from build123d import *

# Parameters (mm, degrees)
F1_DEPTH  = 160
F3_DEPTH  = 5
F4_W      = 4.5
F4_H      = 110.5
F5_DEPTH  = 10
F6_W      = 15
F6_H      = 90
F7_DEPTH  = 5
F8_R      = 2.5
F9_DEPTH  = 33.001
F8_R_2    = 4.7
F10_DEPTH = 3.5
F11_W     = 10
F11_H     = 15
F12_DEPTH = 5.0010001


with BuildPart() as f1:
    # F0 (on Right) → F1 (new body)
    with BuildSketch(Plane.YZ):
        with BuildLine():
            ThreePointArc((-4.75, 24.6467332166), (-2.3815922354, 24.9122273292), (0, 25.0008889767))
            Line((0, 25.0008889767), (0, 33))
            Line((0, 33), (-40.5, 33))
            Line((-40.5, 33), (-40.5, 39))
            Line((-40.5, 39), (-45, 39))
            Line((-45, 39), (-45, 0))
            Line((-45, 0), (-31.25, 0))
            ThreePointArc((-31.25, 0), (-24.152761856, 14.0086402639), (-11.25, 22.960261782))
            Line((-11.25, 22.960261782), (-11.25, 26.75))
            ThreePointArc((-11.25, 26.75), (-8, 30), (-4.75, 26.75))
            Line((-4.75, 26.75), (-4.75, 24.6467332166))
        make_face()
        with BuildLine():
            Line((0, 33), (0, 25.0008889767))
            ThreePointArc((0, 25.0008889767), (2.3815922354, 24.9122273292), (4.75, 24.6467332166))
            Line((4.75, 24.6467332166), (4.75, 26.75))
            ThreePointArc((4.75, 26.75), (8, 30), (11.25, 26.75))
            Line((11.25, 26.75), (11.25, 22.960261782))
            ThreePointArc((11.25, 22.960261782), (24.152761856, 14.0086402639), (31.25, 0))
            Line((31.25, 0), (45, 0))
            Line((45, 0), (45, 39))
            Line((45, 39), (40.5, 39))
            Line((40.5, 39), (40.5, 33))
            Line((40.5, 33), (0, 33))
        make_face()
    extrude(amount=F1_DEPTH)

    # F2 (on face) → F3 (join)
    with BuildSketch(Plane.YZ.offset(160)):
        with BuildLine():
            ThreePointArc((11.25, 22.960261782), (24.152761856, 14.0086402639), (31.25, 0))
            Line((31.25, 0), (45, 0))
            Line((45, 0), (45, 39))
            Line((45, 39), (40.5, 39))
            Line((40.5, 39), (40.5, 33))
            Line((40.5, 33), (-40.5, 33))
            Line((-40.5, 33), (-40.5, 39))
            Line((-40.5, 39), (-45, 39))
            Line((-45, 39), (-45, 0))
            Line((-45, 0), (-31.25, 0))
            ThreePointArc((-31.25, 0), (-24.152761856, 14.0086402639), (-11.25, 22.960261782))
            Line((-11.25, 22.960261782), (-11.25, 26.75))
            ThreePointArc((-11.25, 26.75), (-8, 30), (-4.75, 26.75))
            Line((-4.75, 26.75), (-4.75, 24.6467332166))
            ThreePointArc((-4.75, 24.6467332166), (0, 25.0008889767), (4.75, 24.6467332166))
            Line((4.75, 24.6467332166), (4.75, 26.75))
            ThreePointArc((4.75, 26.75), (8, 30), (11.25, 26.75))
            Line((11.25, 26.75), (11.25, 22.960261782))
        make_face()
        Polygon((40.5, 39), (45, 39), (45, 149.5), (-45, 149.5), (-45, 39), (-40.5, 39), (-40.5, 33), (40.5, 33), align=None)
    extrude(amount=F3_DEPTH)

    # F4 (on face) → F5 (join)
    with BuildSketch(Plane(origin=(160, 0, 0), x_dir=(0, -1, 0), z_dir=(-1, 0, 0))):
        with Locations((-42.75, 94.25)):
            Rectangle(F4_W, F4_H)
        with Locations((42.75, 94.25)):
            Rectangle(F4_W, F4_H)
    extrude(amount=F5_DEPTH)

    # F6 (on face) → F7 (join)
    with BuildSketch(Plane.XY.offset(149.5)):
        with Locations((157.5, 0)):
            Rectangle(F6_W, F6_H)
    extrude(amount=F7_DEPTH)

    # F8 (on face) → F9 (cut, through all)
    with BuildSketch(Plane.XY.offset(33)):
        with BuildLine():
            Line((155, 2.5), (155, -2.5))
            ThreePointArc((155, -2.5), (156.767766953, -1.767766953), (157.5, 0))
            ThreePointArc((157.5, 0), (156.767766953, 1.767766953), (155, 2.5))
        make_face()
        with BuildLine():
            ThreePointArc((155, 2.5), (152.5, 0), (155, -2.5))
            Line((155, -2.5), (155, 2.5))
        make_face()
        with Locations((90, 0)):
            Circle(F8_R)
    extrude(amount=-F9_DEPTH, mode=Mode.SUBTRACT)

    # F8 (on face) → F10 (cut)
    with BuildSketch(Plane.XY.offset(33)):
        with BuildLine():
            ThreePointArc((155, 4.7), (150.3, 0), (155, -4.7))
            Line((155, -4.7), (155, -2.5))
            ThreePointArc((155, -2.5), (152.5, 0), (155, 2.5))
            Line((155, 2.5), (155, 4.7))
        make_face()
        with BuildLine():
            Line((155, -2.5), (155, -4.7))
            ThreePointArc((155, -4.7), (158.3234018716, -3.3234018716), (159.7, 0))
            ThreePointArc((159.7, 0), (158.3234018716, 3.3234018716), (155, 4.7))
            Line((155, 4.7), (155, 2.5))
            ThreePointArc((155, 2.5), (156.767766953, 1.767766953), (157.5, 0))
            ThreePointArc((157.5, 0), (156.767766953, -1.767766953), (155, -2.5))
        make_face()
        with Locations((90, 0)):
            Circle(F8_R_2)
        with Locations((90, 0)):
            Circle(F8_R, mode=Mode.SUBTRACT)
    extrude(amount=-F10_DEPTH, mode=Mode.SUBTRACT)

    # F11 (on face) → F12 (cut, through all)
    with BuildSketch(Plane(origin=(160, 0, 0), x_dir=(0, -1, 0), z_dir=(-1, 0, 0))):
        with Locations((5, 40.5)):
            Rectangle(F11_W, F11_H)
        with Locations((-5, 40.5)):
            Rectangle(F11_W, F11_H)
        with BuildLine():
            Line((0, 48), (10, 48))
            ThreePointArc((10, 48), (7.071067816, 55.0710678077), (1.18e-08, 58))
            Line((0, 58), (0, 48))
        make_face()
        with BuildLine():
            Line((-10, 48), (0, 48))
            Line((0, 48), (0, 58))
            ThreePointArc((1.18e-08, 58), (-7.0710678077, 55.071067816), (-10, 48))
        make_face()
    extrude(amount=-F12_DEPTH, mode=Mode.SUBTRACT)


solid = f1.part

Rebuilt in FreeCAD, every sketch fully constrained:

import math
import FreeCAD as App
import Part
import Sketcher

V = App.Vector

doc = App.newDocument("Part")
body = doc.addObject("PartDesign::Body", "Body")

# Sketch on YZ plane
sketch1 = body.newObject("Sketcher::SketchObject", "Sketch")
sketch1.AttachmentSupport = (doc.getObject("YZ_Plane"), [""])
sketch1.MapMode = "FlatFace"
sketch1.addGeometry([
    Part.ArcOfCircle(Part.Circle(V(0, -7, 0), V(0, 0, 1), 32), math.radians(90), math.radians(98.53)),  # 0
    Part.ArcOfCircle(Part.Circle(V(0, -7, 0), V(0, 0, 1), 32), math.radians(81.47), math.radians(90)),  # 1
    Part.LineSegment(V(4.8, 24.6, 0), V(4.8, 26.8, 0)),  # 2
    Part.ArcOfCircle(Part.Circle(V(8, 26.8, 0), V(0, 0, 1), 3.2), math.radians(0), math.radians(180)),  # 3
    Part.LineSegment(V(11.2, 26.8, 0), V(11.2, 23, 0)),  # 4
    Part.ArcOfCircle(Part.Circle(V(0, -7, 0), V(0, 0, 1), 32), math.radians(13), math.radians(69)),  # 5
    Part.LineSegment(V(31.2, 0, 0), V(45, 0, 0)),  # 6
    Part.LineSegment(V(45, 0, 0), V(45, 39, 0)),  # 7
    Part.LineSegment(V(45, 39, 0), V(40.5, 39, 0)),  # 8
    Part.LineSegment(V(40.5, 39, 0), V(40.5, 33, 0)),  # 9
    Part.LineSegment(V(40.5, 33, 0), V(-40.5, 33, 0)),  # 10
    Part.LineSegment(V(-40.5, 33, 0), V(-40.5, 39, 0)),  # 11
    Part.LineSegment(V(-40.5, 39, 0), V(-45, 39, 0)),  # 12
    Part.LineSegment(V(-45, 39, 0), V(-45, 0, 0)),  # 13
    Part.LineSegment(V(-45, 0, 0), V(-31.2, 0, 0)),  # 14
    Part.ArcOfCircle(Part.Circle(V(0, -7, 0), V(0, 0, 1), 32), math.radians(111), math.radians(167)),  # 15
    Part.LineSegment(V(-11.2, 23, 0), V(-11.2, 26.8, 0)),  # 16
    Part.ArcOfCircle(Part.Circle(V(-8, 26.8, 0), V(0, 0, 1), 3.2), math.radians(0), math.radians(180)),  # 17
    Part.LineSegment(V(-4.8, 26.8, 0), V(-4.8, 24.6, 0)),  # 18
], False)
sketch1.addConstraint([
    Sketcher.Constraint("Tangent", 0, 1, 1, 2),
    Sketcher.Constraint("Coincident", 1, 1, 2, 1),
    Sketcher.Constraint("Tangent", 2, 2, 3, 2),
    Sketcher.Constraint("Tangent", 3, 1, 4, 1),
    Sketcher.Constraint("Coincident", 4, 2, 5, 2),
    Sketcher.Constraint("Coincident", 5, 1, 6, 1),
    Sketcher.Constraint("Coincident", 6, 2, 7, 1),
    Sketcher.Constraint("Coincident", 7, 2, 8, 1),
    Sketcher.Constraint("Coincident", 8, 2, 9, 1),
    Sketcher.Constraint("Coincident", 9, 2, 10, 1),
    Sketcher.Constraint("Coincident", 10, 2, 11, 1),
    Sketcher.Constraint("Coincident", 11, 2, 12, 1),
    Sketcher.Constraint("Coincident", 12, 2, 13, 1),
    Sketcher.Constraint("Coincident", 13, 2, 14, 1),
    Sketcher.Constraint("Coincident", 14, 2, 15, 2),
    Sketcher.Constraint("Coincident", 15, 1, 16, 1),
    Sketcher.Constraint("Tangent", 16, 2, 17, 2),
    Sketcher.Constraint("Tangent", 17, 1, 18, 1),
    Sketcher.Constraint("Coincident", 18, 2, 0, 2),
    Sketcher.Constraint("Vertical", 2),
    Sketcher.Constraint("Vertical", 4),
    Sketcher.Constraint("Horizontal", 6),
    Sketcher.Constraint("Vertical", 7),
    Sketcher.Constraint("Horizontal", 8),
    Sketcher.Constraint("Vertical", 9),
    Sketcher.Constraint("Horizontal", 10),
    Sketcher.Constraint("Vertical", 11),
    Sketcher.Constraint("Horizontal", 12),
    Sketcher.Constraint("Vertical", 13),
    Sketcher.Constraint("Horizontal", 14),
    Sketcher.Constraint("Vertical", 16),
    Sketcher.Constraint("Vertical", 18),
    Sketcher.Constraint("Coincident", 5, 3, 0, 3),
    Sketcher.Constraint("Coincident", 15, 3, 0, 3),
    Sketcher.Constraint("Equal", 0, 1),
    Sketcher.Constraint("Equal", 1, 5),
    Sketcher.Constraint("Equal", 5, 15),
    Sketcher.Constraint("Equal", 3, 17),
    Sketcher.Constraint("Symmetric", 6, 2, 13, 2, -1, 1),
    Sketcher.Constraint("Symmetric", 3, 3, 17, 3, -2),
    Sketcher.Constraint("Symmetric", 8, 2, 11, 2, -2),
    Sketcher.Constraint("Symmetric", 5, 1, 14, 2, -2),
    Sketcher.Constraint("PointOnObject", 0, 1, -2),
    Sketcher.Constraint("DistanceX", 10, 2, 10, 1, 81.0),
    Sketcher.Constraint("DistanceY", 7, 1, 7, 2, 39.0),
    Sketcher.Constraint("DistanceY", 9, 2, 9, 1, 6.0),
    Sketcher.Constraint("Radius", 3, 3.25),
    Sketcher.Constraint("DistanceX", 8, 2, 8, 1, 4.5),
    Sketcher.Constraint("DistanceX", -1, 1, 3, 3, 8.0),
    Sketcher.Constraint("Radius", 0, 32.031),
    Sketcher.Constraint("DistanceX", 4, 2, 5, 1, 20.0),
    Sketcher.Constraint("DistanceY", -1, 1, 3, 3, 26.75),
])
pad1 = body.newObject("PartDesign::Pad", "Pad")
pad1.Profile = sketch1
pad1.Length = 160

# Sketch on YZ plane
sketch2 = body.newObject("Sketcher::SketchObject", "Sketch001")
sketch2.AttachmentSupport = (doc.getObject("YZ_Plane"), [""])
sketch2.MapMode = "FlatFace"
sketch2.AttachmentOffset = App.Placement(V(0, 0, 160), App.Rotation())
sketch2.addGeometry([
    Part.ArcOfCircle(Part.Circle(V(0, -7, 0), V(0, 0, 1), 32), math.radians(13), math.radians(69)),  # 0
    Part.LineSegment(V(31.2, 0, 0), V(45, 0, 0)),  # 1
    Part.LineSegment(V(45, 0, 0), V(45, 149.5, 0)),  # 2
    Part.LineSegment(V(45, 149.5, 0), V(-45, 149.5, 0)),  # 3
    Part.LineSegment(V(-45, 149.5, 0), V(-45, 0, 0)),  # 4
    Part.LineSegment(V(-45, 0, 0), V(-31.2, 0, 0)),  # 5
    Part.ArcOfCircle(Part.Circle(V(0, -7, 0), V(0, 0, 1), 32), math.radians(111), math.radians(167)),  # 6
    Part.LineSegment(V(-11.2, 23, 0), V(-11.2, 26.8, 0)),  # 7
    Part.ArcOfCircle(Part.Circle(V(-8, 26.8, 0), V(0, 0, 1), 3.2), math.radians(0), math.radians(180)),  # 8
    Part.LineSegment(V(-4.8, 26.8, 0), V(-4.8, 24.6, 0)),  # 9
    Part.ArcOfCircle(Part.Circle(V(0, -7, 0), V(0, 0, 1), 32), math.radians(81.47), math.radians(98.53)),  # 10
    Part.LineSegment(V(4.8, 24.6, 0), V(4.8, 26.8, 0)),  # 11
    Part.ArcOfCircle(Part.Circle(V(8, 26.8, 0), V(0, 0, 1), 3.2), math.radians(0), math.radians(180)),  # 12
    Part.LineSegment(V(11.2, 26.8, 0), V(11.2, 23, 0)),  # 13
], False)
sketch2.addConstraint([
    Sketcher.Constraint("Coincident", 0, 1, 1, 1),
    Sketcher.Constraint("Coincident", 1, 2, 2, 1),
    Sketcher.Constraint("Coincident", 2, 2, 3, 1),
    Sketcher.Constraint("Coincident", 3, 2, 4, 1),
    Sketcher.Constraint("Coincident", 4, 2, 5, 1),
    Sketcher.Constraint("Coincident", 5, 2, 6, 2),
    Sketcher.Constraint("Coincident", 6, 1, 7, 1),
    Sketcher.Constraint("Tangent", 7, 2, 8, 2),
    Sketcher.Constraint("Tangent", 8, 1, 9, 1),
    Sketcher.Constraint("Coincident", 9, 2, 10, 2),
    Sketcher.Constraint("Coincident", 10, 1, 11, 1),
    Sketcher.Constraint("Tangent", 11, 2, 12, 2),
    Sketcher.Constraint("Tangent", 12, 1, 13, 1),
    Sketcher.Constraint("Coincident", 13, 2, 0, 2),
    Sketcher.Constraint("Horizontal", 1),
    Sketcher.Constraint("Vertical", 2),
    Sketcher.Constraint("Horizontal", 3),
    Sketcher.Constraint("Vertical", 4),
    Sketcher.Constraint("Horizontal", 5),
    Sketcher.Constraint("Vertical", 7),
    Sketcher.Constraint("Vertical", 9),
    Sketcher.Constraint("Vertical", 11),
    Sketcher.Constraint("Vertical", 13),
    Sketcher.Constraint("Coincident", 6, 3, 0, 3),
    Sketcher.Constraint("Coincident", 10, 3, 0, 3),
    Sketcher.Constraint("Equal", 0, 6),
    Sketcher.Constraint("Equal", 6, 10),
    Sketcher.Constraint("Equal", 8, 12),
    Sketcher.Constraint("Symmetric", 1, 2, 4, 2, -1, 1),
    Sketcher.Constraint("Symmetric", 8, 3, 12, 3, -2),
    Sketcher.Constraint("Symmetric", 0, 1, 5, 2, -2),
    Sketcher.Constraint("DistanceX", 3, 2, 3, 1, 90.0),
    Sketcher.Constraint("Radius", 8, 3.25),
    Sketcher.Constraint("DistanceY", 2, 1, 2, 2, 149.5),
    Sketcher.Constraint("DistanceX", 8, 3, -1, 1, 8.0),
    Sketcher.Constraint("Radius", 0, 32.031),
    Sketcher.Constraint("DistanceX", 5, 2, 6, 1, 20.0),
    Sketcher.Constraint("DistanceY", -1, 1, 8, 3, 26.75),
])
pad2 = body.newObject("PartDesign::Pad", "Pad001")
pad2.Profile = sketch2
pad2.Length = 5

# Sketch on YZ plane
sketch3 = body.newObject("Sketcher::SketchObject", "Sketch002")
sketch3.AttachmentSupport = (doc.getObject("YZ_Plane"), [""])
sketch3.MapMode = "FlatFace"
sketch3.AttachmentOffset = App.Placement(V(0, 0, 160), App.Rotation())
sketch3.addGeometry([
    Part.LineSegment(V(45, 149.5, 0), V(45, 39, 0)),  # 0
    Part.LineSegment(V(45, 39, 0), V(40.5, 39, 0)),  # 1
    Part.LineSegment(V(40.5, 39, 0), V(40.5, 149.5, 0)),  # 2
    Part.LineSegment(V(40.5, 149.5, 0), V(45, 149.5, 0)),  # 3
    Part.LineSegment(V(-40.5, 149.5, 0), V(-40.5, 39, 0)),  # 4
    Part.LineSegment(V(-40.5, 39, 0), V(-45, 39, 0)),  # 5
    Part.LineSegment(V(-45, 39, 0), V(-45, 149.5, 0)),  # 6
    Part.LineSegment(V(-45, 149.5, 0), V(-40.5, 149.5, 0)),  # 7
], False)
sketch3.addConstraint([
    Sketcher.Constraint("Coincident", 0, 2, 1, 1),
    Sketcher.Constraint("Coincident", 1, 2, 2, 1),
    Sketcher.Constraint("Coincident", 2, 2, 3, 1),
    Sketcher.Constraint("Coincident", 3, 2, 0, 1),
    Sketcher.Constraint("Coincident", 4, 2, 5, 1),
    Sketcher.Constraint("Coincident", 5, 2, 6, 1),
    Sketcher.Constraint("Coincident", 6, 2, 7, 1),
    Sketcher.Constraint("Coincident", 7, 2, 4, 1),
    Sketcher.Constraint("Vertical", 0),
    Sketcher.Constraint("Horizontal", 1),
    Sketcher.Constraint("Vertical", 2),
    Sketcher.Constraint("Horizontal", 3),
    Sketcher.Constraint("Vertical", 4),
    Sketcher.Constraint("Horizontal", 5),
    Sketcher.Constraint("Vertical", 6),
    Sketcher.Constraint("Horizontal", 7),
    Sketcher.Constraint("Symmetric", 1, 2, 4, 2, -2),
    Sketcher.Constraint("Symmetric", 3, 2, 6, 2, -2),
    Sketcher.Constraint("DistanceX", 1, 2, 1, 1, 4.5),
    Sketcher.Constraint("DistanceY", 0, 2, 0, 1, 110.5),
    Sketcher.Constraint("DistanceX", -1, 1, 0, 2, 45.0),
    Sketcher.Constraint("DistanceY", -1, 1, 0, 2, 39.0),
])
pad3 = body.newObject("PartDesign::Pad", "Pad002")
pad3.Profile = sketch3
pad3.Length = 10
pad3.Reversed = True

# Sketch on XY plane
sketch4 = body.newObject("Sketcher::SketchObject", "Sketch003")
sketch4.AttachmentSupport = (doc.getObject("XY_Plane"), [""])
sketch4.MapMode = "FlatFace"
sketch4.AttachmentOffset = App.Placement(V(0, 0, 149.5), App.Rotation())
sketch4.addGeometry([
    Part.LineSegment(V(150, 45, 0), V(150, -45, 0)),
    Part.LineSegment(V(150, -45, 0), V(165, -45, 0)),
    Part.LineSegment(V(165, -45, 0), V(165, 45, 0)),
    Part.LineSegment(V(165, 45, 0), V(150, 45, 0)),
], False)
sketch4.addConstraint([
    Sketcher.Constraint("Coincident", 0, 2, 1, 1),
    Sketcher.Constraint("Coincident", 1, 2, 2, 1),
    Sketcher.Constraint("Coincident", 2, 2, 3, 1),
    Sketcher.Constraint("Coincident", 3, 2, 0, 1),
    Sketcher.Constraint("Vertical", 0),
    Sketcher.Constraint("Horizontal", 1),
    Sketcher.Constraint("Vertical", 2),
    Sketcher.Constraint("Horizontal", 3),
    Sketcher.Constraint("DistanceX", 1, 1, 1, 2, 15.0),
    Sketcher.Constraint("DistanceY", 0, 2, 0, 1, 90.0),
    Sketcher.Constraint("DistanceX", -1, 1, 0, 2, 150.0),
    Sketcher.Constraint("DistanceY", 0, 2, -1, 1, 45.0),
])
pad4 = body.newObject("PartDesign::Pad", "Pad003")
pad4.Profile = sketch4
pad4.Length = 5

# Sketch on XY plane
sketch5 = body.newObject("Sketcher::SketchObject", "Sketch004")
sketch5.AttachmentSupport = (doc.getObject("XY_Plane"), [""])
sketch5.MapMode = "FlatFace"
sketch5.AttachmentOffset = App.Placement(V(0, 0, 33), App.Rotation())
sketch5.addGeometry([
    Part.ArcOfCircle(Part.Circle(V(155, 0, 0), V(0, 0, 1), 2.5), math.radians(-90), math.radians(0)),
    Part.ArcOfCircle(Part.Circle(V(155, 0, 0), V(0, 0, 1), 2.5), math.radians(0), math.radians(90)),
    Part.ArcOfCircle(Part.Circle(V(155, 0, 0), V(0, 0, 1), 2.5), math.radians(90), math.radians(270)),
    Part.Circle(V(90, 0, 0), V(0, 0, 1), 2.5),
], False)
sketch5.addConstraint([
    Sketcher.Constraint("Tangent", 0, 2, 1, 1),
    Sketcher.Constraint("Tangent", 1, 2, 2, 1),
    Sketcher.Constraint("Tangent", 2, 2, 0, 1),
    Sketcher.Constraint("Equal", 2, 3),
    Sketcher.Constraint("Symmetric", 1, 2, 2, 2, -1),
    Sketcher.Constraint("PointOnObject", 3, 3, -1),
    Sketcher.Constraint("PointOnObject", 0, 2, -1),
    Sketcher.Constraint("Vertical", 2, 3, 1, 2),
    Sketcher.Constraint("Diameter", 3, 5.0),
    Sketcher.Constraint("DistanceX", -1, 1, 0, 3, 155.0),
    Sketcher.Constraint("DistanceX", -1, 1, 3, 3, 90.0),
])
pocket1 = body.newObject("PartDesign::Pocket", "Pocket")
pocket1.Profile = sketch5
pocket1.Type = "ThroughAll"

# Sketch on XY plane
sketch6 = body.newObject("Sketcher::SketchObject", "Sketch005")
sketch6.AttachmentSupport = (doc.getObject("XY_Plane"), [""])
sketch6.MapMode = "FlatFace"
sketch6.AttachmentOffset = App.Placement(V(0, 0, 33), App.Rotation())
sketch6.addGeometry([
    Part.ArcOfCircle(Part.Circle(V(155, 0, 0), V(0, 0, 1), 4.7), math.radians(90), math.radians(270)),  # 0
    Part.ArcOfCircle(Part.Circle(V(155, 0, 0), V(0, 0, 1), 4.7), math.radians(-90), math.radians(0)),  # 1
    Part.ArcOfCircle(Part.Circle(V(155, 0, 0), V(0, 0, 1), 4.7), math.radians(0), math.radians(90)),  # 2
    Part.ArcOfCircle(Part.Circle(V(155, 0, 0), V(0, 0, 1), 2.5), math.radians(90), math.radians(270)),  # 3
    Part.ArcOfCircle(Part.Circle(V(155, 0, 0), V(0, 0, 1), 2.5), math.radians(0), math.radians(90)),  # 4
    Part.ArcOfCircle(Part.Circle(V(155, 0, 0), V(0, 0, 1), 2.5), math.radians(-90), math.radians(0)),  # 5
    Part.Circle(V(90, 0, 0), V(0, 0, 1), 4.7),  # 6
    Part.Circle(V(90, 0, 0), V(0, 0, 1), 2.5),  # 7
], False)
sketch6.addConstraint([
    Sketcher.Constraint("Tangent", 0, 2, 1, 1),
    Sketcher.Constraint("Tangent", 1, 2, 2, 1),
    Sketcher.Constraint("Tangent", 2, 2, 0, 1),
    Sketcher.Constraint("Tangent", 3, 1, 4, 2),
    Sketcher.Constraint("Tangent", 4, 1, 5, 2),
    Sketcher.Constraint("Tangent", 5, 1, 3, 2),
    Sketcher.Constraint("Coincident", 3, 3, 0, 3),
    Sketcher.Constraint("Coincident", 7, 3, 6, 3),
    Sketcher.Constraint("Equal", 2, 6),
    Sketcher.Constraint("Equal", 5, 7),
    Sketcher.Constraint("Symmetric", 0, 2, 2, 2, -1),
    Sketcher.Constraint("PointOnObject", 6, 3, -1),
    Sketcher.Constraint("PointOnObject", 1, 2, -1),
    Sketcher.Constraint("PointOnObject", 4, 1, -1),
    Sketcher.Constraint("Vertical", 5, 3, 0, 2),
    Sketcher.Constraint("Vertical", 2, 2, 3, 1),
    Sketcher.Constraint("Vertical", 3, 1, 5, 1),
    Sketcher.Constraint("Diameter", 7, 5.0),
    Sketcher.Constraint("Diameter", 6, 9.4),
    Sketcher.Constraint("DistanceX", -1, 1, 0, 3, 155.0),
    Sketcher.Constraint("DistanceX", -1, 1, 6, 3, 90.0),
])
pocket2 = body.newObject("PartDesign::Pocket", "Pocket001")
pocket2.Profile = sketch6
pocket2.Length = 3.5

# Sketch on YZ plane
sketch7 = body.newObject("Sketcher::SketchObject", "Sketch006")
sketch7.AttachmentSupport = (doc.getObject("YZ_Plane"), [""])
sketch7.MapMode = "FlatFace"
sketch7.AttachmentOffset = App.Placement(V(0, 0, 160), App.Rotation())
sketch7.addGeometry([
    Part.LineSegment(V(-10, 33, 0), V(-10, 48, 0)),  # 0
    Part.ArcOfCircle(Part.Circle(V(0, 48, 0), V(0, 0, 1), 10), math.radians(90), math.radians(180)),  # 1
    Part.ArcOfCircle(Part.Circle(V(0, 48, 0), V(0, 0, 1), 10), math.radians(0), math.radians(90)),  # 2
    Part.LineSegment(V(10, 48, 0), V(10, 33, 0)),  # 3
    Part.LineSegment(V(10, 33, 0), V(-10, 33, 0)),  # 4
], False)
sketch7.addConstraint([
    Sketcher.Constraint("Tangent", 0, 2, 1, 2),
    Sketcher.Constraint("Tangent", 1, 1, 2, 2),
    Sketcher.Constraint("Tangent", 2, 1, 3, 1),
    Sketcher.Constraint("Coincident", 3, 2, 4, 1),
    Sketcher.Constraint("Coincident", 4, 2, 0, 1),
    Sketcher.Constraint("Vertical", 0),
    Sketcher.Constraint("Vertical", 3),
    Sketcher.Constraint("Horizontal", 4),
    Sketcher.Constraint("Equal", 1, 2),
    Sketcher.Constraint("PointOnObject", 1, 3, -2),
    Sketcher.Constraint("PointOnObject", 1, 1, -2),
    Sketcher.Constraint("Radius", 1, 10.0),
    Sketcher.Constraint("DistanceY", 0, 1, 0, 2, 15.0),
    Sketcher.Constraint("DistanceY", -1, 1, 1, 3, 48.0),
])
pocket3 = body.newObject("PartDesign::Pocket", "Pocket002")
pocket3.Profile = sketch7
pocket3.Type = "ThroughAll"
pocket3.Reversed = True

doc.recompute()
